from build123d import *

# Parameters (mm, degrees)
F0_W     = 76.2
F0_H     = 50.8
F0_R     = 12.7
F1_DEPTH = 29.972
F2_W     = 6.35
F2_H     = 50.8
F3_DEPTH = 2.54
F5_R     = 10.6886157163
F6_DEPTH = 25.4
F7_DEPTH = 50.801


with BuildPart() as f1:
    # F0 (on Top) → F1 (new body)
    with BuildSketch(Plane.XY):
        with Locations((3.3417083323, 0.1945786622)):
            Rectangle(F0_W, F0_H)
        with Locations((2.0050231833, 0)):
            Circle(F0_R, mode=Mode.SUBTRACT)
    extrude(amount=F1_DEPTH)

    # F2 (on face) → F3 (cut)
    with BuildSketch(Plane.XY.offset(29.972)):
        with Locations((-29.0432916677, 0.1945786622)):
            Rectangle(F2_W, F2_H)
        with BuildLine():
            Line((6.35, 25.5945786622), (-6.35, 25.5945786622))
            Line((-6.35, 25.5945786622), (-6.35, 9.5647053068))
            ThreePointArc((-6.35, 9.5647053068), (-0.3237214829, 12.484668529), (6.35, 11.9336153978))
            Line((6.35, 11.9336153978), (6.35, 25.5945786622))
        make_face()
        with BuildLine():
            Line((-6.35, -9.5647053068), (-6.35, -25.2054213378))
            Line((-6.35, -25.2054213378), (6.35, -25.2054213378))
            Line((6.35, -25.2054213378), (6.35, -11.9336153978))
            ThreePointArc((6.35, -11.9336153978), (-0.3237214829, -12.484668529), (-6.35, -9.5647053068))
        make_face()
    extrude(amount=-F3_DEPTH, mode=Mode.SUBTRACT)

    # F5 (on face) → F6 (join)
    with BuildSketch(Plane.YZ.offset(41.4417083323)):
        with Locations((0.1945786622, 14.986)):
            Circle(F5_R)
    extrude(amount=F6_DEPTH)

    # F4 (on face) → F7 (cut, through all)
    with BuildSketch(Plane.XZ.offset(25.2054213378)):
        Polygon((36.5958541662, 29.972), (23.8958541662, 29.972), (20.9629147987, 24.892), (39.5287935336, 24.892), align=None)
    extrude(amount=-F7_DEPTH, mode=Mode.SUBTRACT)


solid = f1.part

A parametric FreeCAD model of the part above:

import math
import FreeCAD as App
import Part
import Sketcher
Q = App.Units.Quantity

doc = App.newDocument("Part")
body = doc.addObject("PartDesign::Body", "Body")

# Sketch on XY plane
sketch1 = body.newObject("Sketcher::SketchObject", "Sketch")
sketch1.AttachmentSupport = (doc.getObject("XY_Plane"), [""])
sketch1.MapMode = "FlatFace"
sketch1.addGeometry([
    Part.LineSegment(App.Vector(-34.758292, 25.594579, 0), App.Vector(-34.758292, -25.205421, 0)),  # 0
    Part.LineSegment(App.Vector(-34.758292, -25.205421, 0), App.Vector(41.441708, -25.205421, 0)),  # 1
    Part.LineSegment(App.Vector(41.441708, -25.205421, 0), App.Vector(41.441708, 25.594579, 0)),  # 2
    Part.LineSegment(App.Vector(41.441708, 25.594579, 0), App.Vector(-34.758292, 25.594579, 0)),  # 3
    Part.Circle(App.Vector(2.005023, 0, 0), App.Vector(0, 0, 1), 12.7),  # 4
], False)
sketch1.addConstraint([
    Sketcher.Constraint("Coincident", 0, 2, 1, 1),
    Sketcher.Constraint("Coincident", 1, 2, 2, 1),
    Sketcher.Constraint("Coincident", 2, 2, 3, 1),
    Sketcher.Constraint("Coincident", 3, 2, 0, 1),
    Sketcher.Constraint("Vertical", 0),
    Sketcher.Constraint("Horizontal", 1),
    Sketcher.Constraint("Vertical", 2),
    Sketcher.Constraint("Horizontal", 3),
    Sketcher.Constraint("PointOnObject", 4, 3, -1),
    Sketcher.Constraint("Diameter", 4, Q("1 in")),
    Sketcher.Constraint("DistanceX", 1, 1, 1, 2, Q("3 in")),
    Sketcher.Constraint("DistanceY", 0, 2, 0, 1, Q("2 in")),
    Sketcher.Constraint("DistanceX", 0, 2, -1, 1, 34.758292),
    Sketcher.Constraint("DistanceY", 0, 2, -1, 1, 25.205421),
    Sketcher.Constraint("DistanceX", -1, 1, 4, 3, 2.005023),
])
pad1 = body.newObject("PartDesign::Pad", "Pad")
pad1.Profile = sketch1
pad1.Length = Q("1.18 in")

# Sketch on XY plane
sketch2 = body.newObject("Sketcher::SketchObject", "Sketch001")
sketch2.AttachmentSupport = (doc.getObject("XY_Plane"), [""])
sketch2.MapMode = "FlatFace"
sketch2.AttachmentOffset = App.Placement(App.Vector(0, 0, 1.18 * 25.4), App.Rotation())
sketch2.addGeometry([
    Part.LineSegment(App.Vector(-32.218292, 25.594579, 0), App.Vector(-32.218292, -25.205421, 0)),  # 0
    Part.LineSegment(App.Vector(-32.218292, -25.205421, 0), App.Vector(-25.868292, -25.205421, 0)),  # 1
    Part.LineSegment(App.Vector(-25.868292, -25.205421, 0), App.Vector(-25.868292, 25.594579, 0)),  # 2
    Part.LineSegment(App.Vector(-25.868292, 25.594579, 0), App.Vector(-32.218292, 25.594579, 0)),  # 3
    Part.LineSegment(App.Vector(6.35, 25.594579, 0), App.Vector(-6.35, 25.594579, 0)),  # 4
    Part.LineSegment(App.Vector(-6.35, 25.594579, 0), App.Vector(-6.35, 9.564705, 0)),  # 5
    Part.ArcOfCircle(Part.Circle(App.Vector(2.005023, 0, 0), App.Vector(0, 0, 1), 12.7), math.radians(69.993658), math.radians(131.138073)),  # 6
    Part.LineSegment(App.Vector(6.35, 11.933615, 0), App.Vector(6.35, 25.594579, 0)),  # 7
    Part.LineSegment(App.Vector(-6.35, -9.564705, 0), App.Vector(-6.35, -25.205421, 0)),  # 8
    Part.LineSegment(App.Vector(-6.35, -25.205421, 0), App.Vector(6.35, -25.205421, 0)),  # 9
    Part.LineSegment(App.Vector(6.35, -25.205421, 0), App.Vector(6.35, -11.933615, 0)),  # 10
    Part.ArcOfCircle(Part.Circle(App.Vector(2.005023, 0, 0), App.Vector(0, 0, 1), 12.7), math.radians(-131.138073), math.radians(-69.993658)),  # 11
], False)
sketch2.addConstraint([
    Sketcher.Constraint("Coincident", 0, 2, 1, 1),
    Sketcher.Constraint("Coincident", 1, 2, 2, 1),
    Sketcher.Constraint("Coincident", 2, 2, 3, 1),
    Sketcher.Constraint("Coincident", 3, 2, 0, 1),
    Sketcher.Constraint("Coincident", 4, 2, 5, 1),
    Sketcher.Constraint("Coincident", 5, 2, 6, 2),
    Sketcher.Constraint("Coincident", 6, 1, 7, 1),
    Sketcher.Constraint("Coincident", 7, 2, 4, 1),
    Sketcher.Constraint("Coincident", 8, 2, 9, 1),
    Sketcher.Constraint("Coincident", 9, 2, 10, 1),
    Sketcher.Constraint("Coincident", 10, 2, 11, 2),
    Sketcher.Constraint("Coincident", 11, 1, 8, 1),
    Sketcher.Constraint("Vertical", 0),
    Sketcher.Constraint("Horizontal", 1),
    Sketcher.Constraint("Vertical", 2),
    Sketcher.Constraint("Horizontal", 3),
    Sketcher.Constraint("Horizontal", 4),
    Sketcher.Constraint("Vertical", 5),
    Sketcher.Constraint("Vertical", 7),
    Sketcher.Constraint("Vertical", 8),
    Sketcher.Constraint("Horizontal", 9),
    Sketcher.Constraint("Vertical", 10),
    Sketcher.Constraint("Coincident", 11, 3, 6, 3),
    Sketcher.Constraint("Equal", 6, 11),
    Sketcher.Constraint("Symmetric", 6, 1, 10, 2, -1),
    Sketcher.Constraint("Horizontal", 3, 2, 4, 2),
    Sketcher.Constraint("Horizontal", 1, 2, 8, 2),
    Sketcher.Constraint("Vertical", 5, 2, 8, 2),
    Sketcher.Constraint("Radius", 6, Q("0.5 in")),
    Sketcher.Constraint("DistanceY", 0, 2, 0, 1, Q("2 in")),
    Sketcher.Constraint("DistanceX", 4, 2, 4, 1, Q("0.5 in")),
    Sketcher.Constraint("DistanceX", 1, 1, 1, 2, Q("0.25 in")),
    Sketcher.Constraint("DistanceX", 4, 2, -1, 1, Q("0.25 in")),
    Sketcher.Constraint("DistanceY", 5, 2, 5, 1, 16.029873),
    Sketcher.Constraint("DistanceY", 7, 1, 7, 2, 13.660963),
    Sketcher.Constraint("DistanceX", 0, 2, -1, 1, 32.218292),
])
pocket1 = body.newObject("PartDesign::Pocket", "Pocket")
pocket1.Profile = sketch2
pocket1.Length = Q("0.1 in")

# Sketch on YZ plane
sketch3 = body.newObject("Sketcher::SketchObject", "Sketch002")
sketch3.AttachmentSupport = (doc.getObject("YZ_Plane"), [""])
sketch3.MapMode = "FlatFace"
sketch3.AttachmentOffset = App.Placement(App.Vector(0, 0, 41.441708), App.Rotation())
sketch3.addGeometry(Part.Circle(App.Vector(0.194579, 14.986, 0), App.Vector(0, 0, 1), 10.688616), False)
sketch3.addConstraint([
    Sketcher.Constraint("DistanceY", -1, 1, 0, 3, Q("0.59 in")),
    Sketcher.Constraint("Diameter", 0, 21.377231),
    Sketcher.Constraint("DistanceX", -1, 1, 0, 3, 0.194579),
])
pad2 = body.newObject("PartDesign::Pad", "Pad001")
pad2.Profile = sketch3
pad2.Length = Q("1 in")

# Sketch on XZ plane
sketch4 = body.newObject("Sketcher::SketchObject", "Sketch003")
sketch4.AttachmentSupport = (doc.getObject("XZ_Plane"), [""])
sketch4.MapMode = "FlatFace"
sketch4.AttachmentOffset = App.Placement(App.Vector(0, 0, 25.205421), App.Rotation())
sketch4.addGeometry([
    Part.LineSegment(App.Vector(36.595854, 29.972, 0), App.Vector(23.895854, 29.972, 0)),
    Part.LineSegment(App.Vector(23.895854, 29.972, 0), App.Vector(20.962915, 24.892, 0)),
    Part.LineSegment(App.Vector(20.962915, 24.892, 0), App.Vector(39.528794, 24.892, 0)),
    Part.LineSegment(App.Vector(39.528794, 24.892, 0), App.Vector(36.595854, 29.972, 0)),
], False)
sketch4.addConstraint([
    Sketcher.Constraint("Coincident", 0, 2, 1, 1),
    Sketcher.Constraint("Coincident", 1, 2, 2, 1),
    Sketcher.Constraint("Coincident", 2, 2, 3, 1),
    Sketcher.Constraint("Coincident", 3, 2, 0, 1),
    Sketcher.Constraint("Horizontal", 0),
    Sketcher.Constraint("Horizontal", 2),
    Sketcher.Constraint("Equal", 1, 3),
    Sketcher.Constraint("DistanceX", 0, 2, 0, 1, Q("0.5 in")),
    Sketcher.Constraint("Angle", 1, Q("-120 deg")),
    Sketcher.Constraint("DistanceY", 1, 2, 0, 2, Q("0.2 in")),
    Sketcher.Constraint("DistanceY", -1, 1, 0, 2, Q("1.18 in")),
    Sketcher.Constraint("DistanceX", -1, 1, 0, 2, 23.895854),
])
pocket2 = body.newObject("PartDesign::Pocket", "Pocket001")
pocket2.Profile = sketch4
pocket2.Type = "ThroughAll"

doc.recompute()
